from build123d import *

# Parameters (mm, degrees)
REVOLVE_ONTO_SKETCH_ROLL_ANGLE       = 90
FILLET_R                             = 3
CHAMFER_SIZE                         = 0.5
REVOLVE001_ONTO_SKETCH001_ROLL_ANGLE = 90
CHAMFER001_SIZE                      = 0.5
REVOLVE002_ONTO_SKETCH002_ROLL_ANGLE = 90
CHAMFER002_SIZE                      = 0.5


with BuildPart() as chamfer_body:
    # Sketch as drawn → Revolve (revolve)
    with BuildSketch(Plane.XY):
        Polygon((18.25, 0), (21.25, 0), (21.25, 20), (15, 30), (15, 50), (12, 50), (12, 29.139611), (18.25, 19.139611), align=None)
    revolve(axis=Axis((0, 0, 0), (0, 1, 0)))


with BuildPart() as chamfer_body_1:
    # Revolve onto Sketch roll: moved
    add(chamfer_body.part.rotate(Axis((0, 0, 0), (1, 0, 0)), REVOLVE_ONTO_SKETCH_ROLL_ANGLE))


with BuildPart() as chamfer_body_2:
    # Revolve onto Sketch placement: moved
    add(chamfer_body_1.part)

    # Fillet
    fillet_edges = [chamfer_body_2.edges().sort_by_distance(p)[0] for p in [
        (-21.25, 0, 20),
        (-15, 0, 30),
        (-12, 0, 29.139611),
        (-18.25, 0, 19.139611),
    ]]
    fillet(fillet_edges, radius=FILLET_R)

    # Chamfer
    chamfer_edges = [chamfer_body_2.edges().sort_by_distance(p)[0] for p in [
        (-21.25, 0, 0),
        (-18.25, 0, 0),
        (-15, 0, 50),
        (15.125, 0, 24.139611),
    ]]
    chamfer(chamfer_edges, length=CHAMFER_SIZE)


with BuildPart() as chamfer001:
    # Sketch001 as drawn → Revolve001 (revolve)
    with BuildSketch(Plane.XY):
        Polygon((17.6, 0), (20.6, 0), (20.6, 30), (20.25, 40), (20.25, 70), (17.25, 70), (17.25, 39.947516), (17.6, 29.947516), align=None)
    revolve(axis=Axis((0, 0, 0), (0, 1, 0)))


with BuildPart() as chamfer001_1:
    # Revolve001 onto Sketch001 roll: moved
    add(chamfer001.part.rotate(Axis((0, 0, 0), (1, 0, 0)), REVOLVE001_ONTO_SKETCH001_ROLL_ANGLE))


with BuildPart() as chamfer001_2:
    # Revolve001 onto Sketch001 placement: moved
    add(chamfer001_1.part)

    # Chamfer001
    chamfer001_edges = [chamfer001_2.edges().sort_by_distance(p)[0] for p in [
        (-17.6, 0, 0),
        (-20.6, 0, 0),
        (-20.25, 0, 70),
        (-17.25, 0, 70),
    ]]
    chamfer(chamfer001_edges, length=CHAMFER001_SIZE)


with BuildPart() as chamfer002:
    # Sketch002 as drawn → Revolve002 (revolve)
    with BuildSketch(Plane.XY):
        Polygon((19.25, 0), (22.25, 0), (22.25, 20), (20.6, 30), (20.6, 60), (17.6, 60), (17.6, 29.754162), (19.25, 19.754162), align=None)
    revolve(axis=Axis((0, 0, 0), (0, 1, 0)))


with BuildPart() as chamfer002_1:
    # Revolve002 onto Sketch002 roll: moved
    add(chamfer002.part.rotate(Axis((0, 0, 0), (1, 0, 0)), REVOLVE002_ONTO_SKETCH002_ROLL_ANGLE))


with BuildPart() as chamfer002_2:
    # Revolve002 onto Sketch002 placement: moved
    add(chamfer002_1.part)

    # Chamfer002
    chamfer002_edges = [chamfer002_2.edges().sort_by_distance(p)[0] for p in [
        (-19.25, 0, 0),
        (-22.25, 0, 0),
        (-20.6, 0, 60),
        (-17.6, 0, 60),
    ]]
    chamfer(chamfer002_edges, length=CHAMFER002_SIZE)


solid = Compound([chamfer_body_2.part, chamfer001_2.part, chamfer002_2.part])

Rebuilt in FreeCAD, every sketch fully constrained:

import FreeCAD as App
import Part
import Sketcher


def edges_at(feature, points):
    """Names of the edges that pass closest to the given points."""
    edges = feature.Shape.Edges
    near = lambda p: min(range(len(edges)), key=lambda i: edges[i].distToShape(Part.Vertex(*p))[0])
    return sorted({f"Edge{near(p) + 1}" for p in points})

doc = App.newDocument("Part")
body = doc.addObject("PartDesign::Body", "Body")

sketch1 = doc.addObject("Sketcher::SketchObject", "Sketch")
body.addObject(sketch1)
sketch1.AttachmentSupport = (doc.XY_Plane, [""])
sketch1.MapMode = "FlatFace"
sketch1.addGeometry(Part.LineSegment(App.Vector(18.2, 0, 0), App.Vector(21.2, 0, 0)), False)
sketch1.addGeometry(Part.LineSegment(App.Vector(21.2, 0, 0), App.Vector(21.2, 20, 0)), False)
sketch1.addGeometry(Part.LineSegment(App.Vector(21.2, 20, 0), App.Vector(15, 30, 0)), False)
sketch1.addGeometry(Part.LineSegment(App.Vector(15, 30, 0), App.Vector(15, 50, 0)), False)
sketch1.addGeometry(Part.LineSegment(App.Vector(15, 50, 0), App.Vector(12, 50, 0)), False)
sketch1.addGeometry(Part.LineSegment(App.Vector(12, 50, 0), App.Vector(12, 29.1, 0)), False)
sketch1.addGeometry(Part.LineSegment(App.Vector(12, 29.1, 0), App.Vector(18.2, 19.1, 0)), False)
sketch1.addGeometry(Part.LineSegment(App.Vector(18.2, 19.1, 0), App.Vector(18.2, 0, 0)), False)
sketch1.addConstraint(Sketcher.Constraint("Coincident", 0, 2, 1, 1))
sketch1.addConstraint(Sketcher.Constraint("Coincident", 1, 2, 2, 1))
sketch1.addConstraint(Sketcher.Constraint("Coincident", 2, 2, 3, 1))
sketch1.addConstraint(Sketcher.Constraint("Coincident", 3, 2, 4, 1))
sketch1.addConstraint(Sketcher.Constraint("Coincident", 4, 2, 5, 1))
sketch1.addConstraint(Sketcher.Constraint("Coincident", 5, 2, 6, 1))
sketch1.addConstraint(Sketcher.Constraint("Coincident", 6, 2, 7, 1))
sketch1.addConstraint(Sketcher.Constraint("Coincident", 7, 2, 0, 1))
sketch1.addConstraint(Sketcher.Constraint("Horizontal", 0))
sketch1.addConstraint(Sketcher.Constraint("Vertical", 1))
sketch1.addConstraint(Sketcher.Constraint("Vertical", 3))
sketch1.addConstraint(Sketcher.Constraint("Horizontal", 4))
sketch1.addConstraint(Sketcher.Constraint("Vertical", 5))
sketch1.addConstraint(Sketcher.Constraint("Vertical", 7))
sketch1.addConstraint(Sketcher.Constraint("PointOnObject", 0, 2, -1))
sketch1.addConstraint(Sketcher.Constraint("Parallel", 2, 6))
sketch1.addConstraint(Sketcher.Constraint("Equal", 0, 4))
sketch1.addConstraint(Sketcher.Constraint("Equal", 1, 3))
sketch1.addConstraint(Sketcher.Constraint("DistanceX", 0, 1, 0, 2, 3.0))
sketch1.addConstraint(Sketcher.Constraint("DistanceY", 1, 1, 1, 2, 20.0))
sketch1.addConstraint(Sketcher.Constraint("DistanceX", -1, 1, 2, 2, 15.0))
sketch1.addConstraint(Sketcher.Constraint("DistanceY", -1, 1, 2, 2, 30.0))
sketch1.addConstraint(Sketcher.Constraint("DistanceX", -1, 1, 0, 2, 21.25))
sketch1.addConstraint(Sketcher.Constraint("DistanceY", 5, 2, 5, 1, 20.860389))
revolution = doc.addObject("PartDesign::Revolution", "Revolution")
body.addObject(revolution)
revolution.Profile = sketch1
revolution.ReferenceAxis = (sketch1, ["V_Axis"])
revolution.Angle = 360
body2 = doc.addObject("PartDesign::Body", "Body001")
doc.recompute()

body.Placement = App.Placement(App.Vector(0, 0, 0), App.Rotation(App.Vector(1, 0, 0), 90))
boolean = doc.addObject("PartDesign::Boolean", "Boolean")
body2.addObject(boolean)
boolean.Type = "Fuse"
boolean.addObjects([body])
doc.recompute()

fillet = doc.addObject("PartDesign::Fillet", "Fillet")
body2.addObject(fillet)
fillet.Base = (boolean, edges_at(boolean, [
    (-21.25, 0, 20),
    (-15, 0, 30),
    (-12, 0, 29.14),
    (-18.25, 0, 19.14),
]))
fillet.Radius = 3
doc.recompute()

chamfer = doc.addObject("PartDesign::Chamfer", "Chamfer")
body2.addObject(chamfer)
chamfer.Base = (fillet, edges_at(fillet, [
    (-21.25, 0, 0),
    (-18.25, 0, 0),
    (-15, 0, 50),
    (15.125, 0, 24.14),
]))
chamfer.Size = 0.5
body3 = doc.addObject("PartDesign::Body", "Body002")

sketch2 = doc.addObject("Sketcher::SketchObject", "Sketch001")
body3.addObject(sketch2)
sketch2.AttachmentSupport = (doc.getObject("XY_Plane002"), [""])
sketch2.MapMode = "FlatFace"
sketch2.addGeometry(Part.LineSegment(App.Vector(17.6, 0, 0), App.Vector(20.6, 0, 0)), False)
sketch2.addGeometry(Part.LineSegment(App.Vector(20.6, 0, 0), App.Vector(20.6, 30, 0)), False)
sketch2.addGeometry(Part.LineSegment(App.Vector(20.6, 30, 0), App.Vector(20.2, 40, 0)), False)
sketch2.addGeometry(Part.LineSegment(App.Vector(20.2, 40, 0), App.Vector(20.2, 70, 0)), False)
sketch2.addGeometry(Part.LineSegment(App.Vector(20.2, 70, 0), App.Vector(17.2, 70, 0)), False)
sketch2.addGeometry(Part.LineSegment(App.Vector(17.2, 70, 0), App.Vector(17.2, 39.9, 0)), False)
sketch2.addGeometry(Part.LineSegment(App.Vector(17.2, 39.9, 0), App.Vector(17.6, 29.9, 0)), False)
sketch2.addGeometry(Part.LineSegment(App.Vector(17.6, 29.9, 0), App.Vector(17.6, 0, 0)), False)
sketch2.addConstraint(Sketcher.Constraint("Coincident", 0, 2, 1, 1))
sketch2.addConstraint(Sketcher.Constraint("Coincident", 1, 2, 2, 1))
sketch2.addConstraint(Sketcher.Constraint("Coincident", 2, 2, 3, 1))
sketch2.addConstraint(Sketcher.Constraint("Coincident", 3, 2, 4, 1))
sketch2.addConstraint(Sketcher.Constraint("Coincident", 4, 2, 5, 1))
sketch2.addConstraint(Sketcher.Constraint("Coincident", 5, 2, 6, 1))
sketch2.addConstraint(Sketcher.Constraint("Coincident", 6, 2, 7, 1))
sketch2.addConstraint(Sketcher.Constraint("Coincident", 7, 2, 0, 1))
sketch2.addConstraint(Sketcher.Constraint("Horizontal", 0))
sketch2.addConstraint(Sketcher.Constraint("Vertical", 1))
sketch2.addConstraint(Sketcher.Constraint("Vertical", 3))
sketch2.addConstraint(Sketcher.Constraint("Horizontal", 4))
sketch2.addConstraint(Sketcher.Constraint("Vertical", 5))
sketch2.addConstraint(Sketcher.Constraint("Vertical", 7))
sketch2.addConstraint(Sketcher.Constraint("PointOnObject", 0, 2, -1))
sketch2.addConstraint(Sketcher.Constraint("Parallel", 2, 6))
sketch2.addConstraint(Sketcher.Constraint("Equal", 0, 4))
sketch2.addConstraint(Sketcher.Constraint("Equal", 1, 3))
sketch2.addConstraint(Sketcher.Constraint("DistanceX", 0, 1, 0, 2, 3.0))
sketch2.addConstraint(Sketcher.Constraint("DistanceY", 1, 1, 1, 2, 30.0))
sketch2.addConstraint(Sketcher.Constraint("DistanceY", -1, 1, 2, 2, 40.0))
sketch2.addConstraint(Sketcher.Constraint("DistanceX", -1, 1, 0, 2, 20.6))
sketch2.addConstraint(Sketcher.Constraint("DistanceX", -1, 1, 2, 2, 20.25))
sketch2.addConstraint(Sketcher.Constraint("DistanceY", 5, 2, 5, 1, 30.052484))
revolution2 = doc.addObject("PartDesign::Revolution", "Revolution001")
body3.addObject(revolution2)
revolution2.Profile = sketch2
revolution2.ReferenceAxis = (sketch2, ["V_Axis"])
revolution2.Angle = 360
body4 = doc.addObject("PartDesign::Body", "Body003")
doc.recompute()

body3.Placement = App.Placement(App.Vector(0, 0, 0), App.Rotation(App.Vector(1, 0, 0), 90))
boolean2 = doc.addObject("PartDesign::Boolean", "Boolean001")
body4.addObject(boolean2)
boolean2.Type = "Fuse"
boolean2.addObjects([body3])
doc.recompute()

chamfer2 = doc.addObject("PartDesign::Chamfer", "Chamfer001")
body4.addObject(chamfer2)
chamfer2.Base = (boolean2, edges_at(boolean2, [
    (-17.6, 0, 0),
    (-20.6, 0, 0),
    (-20.25, 0, 70),
    (-17.25, 0, 70),
]))
chamfer2.Size = 0.5
body5 = doc.addObject("PartDesign::Body", "Body004")

sketch3 = doc.addObject("Sketcher::SketchObject", "Sketch002")
body5.addObject(sketch3)
sketch3.AttachmentSupport = (doc.getObject("XY_Plane004"), [""])
sketch3.MapMode = "FlatFace"
sketch3.addGeometry(Part.LineSegment(App.Vector(19.2, 0, 0), App.Vector(22.2, 0, 0)), False)
sketch3.addGeometry(Part.LineSegment(App.Vector(22.2, 0, 0), App.Vector(22.2, 20, 0)), False)
sketch3.addGeometry(Part.LineSegment(App.Vector(22.2, 20, 0), App.Vector(20.6, 30, 0)), False)
sketch3.addGeometry(Part.LineSegment(App.Vector(20.6, 30, 0), App.Vector(20.6, 60, 0)), False)
sketch3.addGeometry(Part.LineSegment(App.Vector(20.6, 60, 0), App.Vector(17.6, 60, 0)), False)
sketch3.addGeometry(Part.LineSegment(App.Vector(17.6, 60, 0), App.Vector(17.6, 29.8, 0)), False)
sketch3.addGeometry(Part.LineSegment(App.Vector(17.6, 29.8, 0), App.Vector(19.2, 19.8, 0)), False)
sketch3.addGeometry(Part.LineSegment(App.Vector(19.2, 19.8, 0), App.Vector(19.2, 0, 0)), False)
sketch3.addConstraint(Sketcher.Constraint("Coincident", 0, 2, 1, 1))
sketch3.addConstraint(Sketcher.Constraint("Coincident", 1, 2, 2, 1))
sketch3.addConstraint(Sketcher.Constraint("Coincident", 2, 2, 3, 1))
sketch3.addConstraint(Sketcher.Constraint("Coincident", 3, 2, 4, 1))
sketch3.addConstraint(Sketcher.Constraint("Coincident", 4, 2, 5, 1))
sketch3.addConstraint(Sketcher.Constraint("Coincident", 5, 2, 6, 1))
sketch3.addConstraint(Sketcher.Constraint("Coincident", 6, 2, 7, 1))
sketch3.addConstraint(Sketcher.Constraint("Coincident", 7, 2, 0, 1))
sketch3.addConstraint(Sketcher.Constraint("Horizontal", 0))
sketch3.addConstraint(Sketcher.Constraint("Vertical", 1))
sketch3.addConstraint(Sketcher.Constraint("Vertical", 3))
sketch3.addConstraint(Sketcher.Constraint("Horizontal", 4))
sketch3.addConstraint(Sketcher.Constraint("Vertical", 5))
sketch3.addConstraint(Sketcher.Constraint("Vertical", 7))
sketch3.addConstraint(Sketcher.Constraint("PointOnObject", 0, 2, -1))
sketch3.addConstraint(Sketcher.Constraint("Parallel", 2, 6))
sketch3.addConstraint(Sketcher.Constraint("Equal", 0, 4))
sketch3.addConstraint(Sketcher.Constraint("DistanceX", 0, 1, 0, 2, 3.0))
sketch3.addConstraint(Sketcher.Constraint("DistanceY", 1, 1, 1, 2, 20.0))
sketch3.addConstraint(Sketcher.Constraint("DistanceY", 3, 1, 3, 2, 30.0))
sketch3.addConstraint(Sketcher.Constraint("DistanceY", -1, 1, 2, 2, 30.0))
sketch3.addConstraint(Sketcher.Constraint("DistanceX", -1, 1, 2, 2, 20.6))
sketch3.addConstraint(Sketcher.Constraint("DistanceX", -1, 1, 0, 2, 22.25))
sketch3.addConstraint(Sketcher.Constraint("DistanceY", 5, 2, 5, 1, 30.245838))
revolution3 = doc.addObject("PartDesign::Revolution", "Revolution002")
body5.addObject(revolution3)
revolution3.Profile = sketch3
revolution3.ReferenceAxis = (sketch3, ["V_Axis"])
revolution3.Angle = 360
body6 = doc.addObject("PartDesign::Body", "Body005")
doc.recompute()

body5.Placement = App.Placement(App.Vector(0, 0, 0), App.Rotation(App.Vector(1, 0, 0), 90))
boolean3 = doc.addObject("PartDesign::Boolean", "Boolean002")
body6.addObject(boolean3)
boolean3.Type = "Fuse"
boolean3.addObjects([body5])
doc.recompute()

chamfer3 = doc.addObject("PartDesign::Chamfer", "Chamfer002")
body6.addObject(chamfer3)
chamfer3.Base = (boolean3, edges_at(boolean3, [
    (-19.25, 0, 0),
    (-22.25, 0, 0),
    (-20.6, 0, 60),
    (-17.6, 0, 60),
]))
chamfer3.Size = 0.5

doc.recompute()
